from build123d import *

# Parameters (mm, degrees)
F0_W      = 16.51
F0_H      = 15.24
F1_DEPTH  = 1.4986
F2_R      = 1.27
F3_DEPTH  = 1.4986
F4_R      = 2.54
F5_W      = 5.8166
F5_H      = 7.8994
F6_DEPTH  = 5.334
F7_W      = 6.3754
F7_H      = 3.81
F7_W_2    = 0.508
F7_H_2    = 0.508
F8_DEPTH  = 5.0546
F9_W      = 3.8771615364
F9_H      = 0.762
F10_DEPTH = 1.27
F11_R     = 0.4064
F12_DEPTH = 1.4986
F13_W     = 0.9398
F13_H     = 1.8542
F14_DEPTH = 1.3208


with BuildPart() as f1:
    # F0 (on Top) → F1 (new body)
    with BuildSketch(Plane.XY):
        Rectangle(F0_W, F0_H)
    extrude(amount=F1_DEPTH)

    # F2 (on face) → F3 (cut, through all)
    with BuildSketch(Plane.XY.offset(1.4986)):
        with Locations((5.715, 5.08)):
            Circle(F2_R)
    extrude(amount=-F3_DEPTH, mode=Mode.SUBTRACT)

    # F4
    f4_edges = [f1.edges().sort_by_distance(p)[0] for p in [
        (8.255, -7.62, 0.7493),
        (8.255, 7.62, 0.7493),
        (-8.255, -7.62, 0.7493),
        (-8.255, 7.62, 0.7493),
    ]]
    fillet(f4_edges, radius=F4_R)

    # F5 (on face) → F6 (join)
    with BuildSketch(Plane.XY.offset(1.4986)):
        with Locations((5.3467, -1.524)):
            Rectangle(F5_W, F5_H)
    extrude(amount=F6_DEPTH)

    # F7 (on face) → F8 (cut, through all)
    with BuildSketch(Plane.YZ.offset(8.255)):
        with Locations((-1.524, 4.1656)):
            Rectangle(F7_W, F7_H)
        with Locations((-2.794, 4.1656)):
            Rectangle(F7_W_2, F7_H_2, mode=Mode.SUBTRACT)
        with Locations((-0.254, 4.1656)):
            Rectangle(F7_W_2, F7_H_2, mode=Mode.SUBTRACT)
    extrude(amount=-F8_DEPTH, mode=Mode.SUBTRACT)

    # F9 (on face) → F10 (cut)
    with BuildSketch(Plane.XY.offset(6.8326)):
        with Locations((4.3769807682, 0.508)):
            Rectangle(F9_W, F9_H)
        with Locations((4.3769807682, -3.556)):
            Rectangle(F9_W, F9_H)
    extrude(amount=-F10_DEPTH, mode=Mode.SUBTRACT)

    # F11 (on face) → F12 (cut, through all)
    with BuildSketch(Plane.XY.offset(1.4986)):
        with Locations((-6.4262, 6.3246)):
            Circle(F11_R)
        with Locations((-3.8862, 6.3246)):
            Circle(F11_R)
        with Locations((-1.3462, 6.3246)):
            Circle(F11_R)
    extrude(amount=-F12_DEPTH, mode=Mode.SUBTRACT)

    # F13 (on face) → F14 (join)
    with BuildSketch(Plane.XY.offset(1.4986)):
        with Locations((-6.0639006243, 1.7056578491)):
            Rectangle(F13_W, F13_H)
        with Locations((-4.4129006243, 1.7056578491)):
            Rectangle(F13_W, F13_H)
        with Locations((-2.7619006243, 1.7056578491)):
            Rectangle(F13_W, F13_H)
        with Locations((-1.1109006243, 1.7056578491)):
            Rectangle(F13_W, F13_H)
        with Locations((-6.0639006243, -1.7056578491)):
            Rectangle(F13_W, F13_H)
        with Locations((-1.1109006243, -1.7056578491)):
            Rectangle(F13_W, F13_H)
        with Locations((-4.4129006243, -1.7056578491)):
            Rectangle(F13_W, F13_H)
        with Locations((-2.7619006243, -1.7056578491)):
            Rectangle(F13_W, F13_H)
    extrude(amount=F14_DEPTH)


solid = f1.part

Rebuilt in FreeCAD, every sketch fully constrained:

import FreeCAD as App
import Part
import Sketcher
from FreeCAD import Vector
Q = App.Units.Quantity


def edges_at(feature, points):
    """Names of the edges that pass closest to the given points."""
    edges = feature.Shape.Edges
    near = lambda p: min(range(len(edges)), key=lambda i: edges[i].distToShape(Part.Vertex(*p))[0])
    return sorted({f"Edge{near(p) + 1}" for p in points})


def add_polygon(sketch, points):
    """Adds a closed chain of lines whose ends are joined by coincident constraints."""
    first, n = sketch.GeometryCount, len(points)
    for a, b in zip(points, points[1:] + points[:1]):
        sketch.addGeometry(Part.LineSegment(App.Vector(*a, 0), App.Vector(*b, 0)), False)
    for i in range(n):
        sketch.addConstraint(Sketcher.Constraint("Coincident", first + i, 2, first + (i + 1) % n, 1))

doc = App.newDocument("Part")
body = doc.addObject("PartDesign::Body", "Body")

sketch1 = doc.addObject("Sketcher::SketchObject", "Sketch")
body.addObject(sketch1)
sketch1.AttachmentSupport = (doc.XY_Plane, [""])
sketch1.MapMode = "FlatFace"
add_polygon(sketch1, [(-8, 8), (-8, -8), (8, -8), (8, 8)])
sketch1.addConstraint([
    Sketcher.Constraint("Vertical", 0),
    Sketcher.Constraint("Horizontal", 1),
    Sketcher.Constraint("Vertical", 2),
    Sketcher.Constraint("Horizontal", 3),
    Sketcher.Constraint("Symmetric", 0, 2, 2, 2, -1, 1),
    Sketcher.Constraint("DistanceY", 0, 2, 0, 1, Q("0.6 in")),
    Sketcher.Constraint("DistanceX", 1, 1, 1, 2, Q("0.65 in")),
])
pad1 = doc.addObject("PartDesign::Pad", "Pad")
body.addObject(pad1)
pad1.Profile = sketch1
pad1.Length = Q("0.059 in")

sketch2 = doc.addObject("Sketcher::SketchObject", "Sketch001")
body.addObject(sketch2)
sketch2.AttachmentSupport = (doc.XY_Plane, [""])
sketch2.MapMode = "FlatFace"
sketch2.AttachmentOffset = App.Placement(Vector(0, 0, 0.059 * 25.4), App.Rotation())
sketch2.addGeometry(Part.Circle(Vector(5.7, 5.1, 0), Vector(0, 0, 1), 1.3), False)
sketch2.addConstraint([
    Sketcher.Constraint("Diameter", 0, Q("0.1 in")),
    Sketcher.Constraint("DistanceY", -1, 1, 0, 3, Q("0.2 in")),
    Sketcher.Constraint("DistanceX", -1, 1, 0, 3, Q("0.225 in")),
])
pocket1 = doc.addObject("PartDesign::Pocket", "Pocket")
body.addObject(pocket1)
pocket1.Profile = sketch2
pocket1.Type = "ThroughAll"
doc.recompute()

fillet = doc.addObject("PartDesign::Fillet", "Fillet")
body.addObject(fillet)
fillet.Base = (pocket1, edges_at(pocket1, [
    (8.255, -7.62, 0.749),
    (8.255, 7.62, 0.749),
    (-8.255, -7.62, 0.749),
    (-8.255, 7.62, 0.749),
]))
fillet.Radius = Q("0.1 in")

sketch3 = doc.addObject("Sketcher::SketchObject", "Sketch002")
body.addObject(sketch3)
sketch3.AttachmentSupport = (doc.XY_Plane, [""])
sketch3.MapMode = "FlatFace"
sketch3.AttachmentOffset = App.Placement(Vector(0, 0, 0.059 * 25.4), App.Rotation())
add_polygon(sketch3, [(2, 2), (2, -5), (8, -5), (8, 2)])
sketch3.addConstraint([
    Sketcher.Constraint("Vertical", 0),
    Sketcher.Constraint("Horizontal", 1),
    Sketcher.Constraint("Vertical", 2),
    Sketcher.Constraint("Horizontal", 3),
    Sketcher.Constraint("DistanceX", 1, 1, 1, 2, Q("0.229 in")),
    Sketcher.Constraint("DistanceY", 0, 2, 0, 1, Q("0.311 in")),
    Sketcher.Constraint("DistanceX", -1, 1, 0, 2, Q("0.096 in")),
    Sketcher.Constraint("DistanceY", 0, 2, -1, 1, Q("0.2155 in")),
])
pad2 = doc.addObject("PartDesign::Pad", "Pad001")
body.addObject(pad2)
pad2.Profile = sketch3
pad2.Length = Q("0.21 in")

sketch4 = doc.addObject("Sketcher::SketchObject", "Sketch003")
body.addObject(sketch4)
sketch4.AttachmentSupport = (doc.YZ_Plane, [""])
sketch4.MapMode = "FlatFace"
sketch4.AttachmentOffset = App.Placement(Vector(0, 0, 0.325 * 25.4), App.Rotation())
add_polygon(sketch4, [(-4.7, 6.1), (-4.7, 2.3), (1.7, 2.3), (1.7, 6.1)])
add_polygon(sketch4, [(-2.5, 3.9), (-3, 3.9), (-3, 4.4), (-2.5, 4.4)])
add_polygon(sketch4, [(0, 3.9), (-0.5, 3.9), (-0.5, 4.4), (0, 4.4)])
sketch4.addConstraint([
    Sketcher.Constraint("Vertical", 0),
    Sketcher.Constraint("Horizontal", 1),
    Sketcher.Constraint("Vertical", 2),
    Sketcher.Constraint("Horizontal", 3),
    Sketcher.Constraint("Horizontal", 4),
    Sketcher.Constraint("Vertical", 5),
    Sketcher.Constraint("Horizontal", 6),
    Sketcher.Constraint("Vertical", 7),
    Sketcher.Constraint("Horizontal", 8),
    Sketcher.Constraint("Vertical", 9),
    Sketcher.Constraint("Horizontal", 10),
    Sketcher.Constraint("Vertical", 11),
    Sketcher.Constraint("PointOnObject", 10, 2, -2),
    Sketcher.Constraint("Horizontal", 7, 2, 8, 2),
    Sketcher.Constraint("Horizontal", 6, 2, 9, 2),
    Sketcher.Constraint("Equal", 6, 8),
    Sketcher.Constraint("Equal", 10, 5),
    Sketcher.Constraint("DistanceX", 4, 2, 4, 1, Q("0.02 in")),
    Sketcher.Constraint("DistanceY", 0, 2, 0, 1, Q("0.15 in")),
    Sketcher.Constraint("DistanceX", 6, 2, -1, 1, Q("0.1 in")),
    Sketcher.Constraint("DistanceX", 1, 1, 1, 2, Q("0.251 in")),
    Sketcher.Constraint("DistanceY", -1, 1, 0, 2, Q("0.089 in")),
    Sketcher.Constraint("DistanceY", -1, 1, 4, 2, Q("0.154 in")),
    Sketcher.Constraint("DistanceX", 0, 2, -1, 1, Q("0.1855 in")),
])
pocket2 = doc.addObject("PartDesign::Pocket", "Pocket001")
body.addObject(pocket2)
pocket2.Profile = sketch4
pocket2.Length = Q("0.199 in")

sketch5 = doc.addObject("Sketcher::SketchObject", "Sketch004")
body.addObject(sketch5)
sketch5.AttachmentSupport = (doc.XY_Plane, [""])
sketch5.MapMode = "FlatFace"
sketch5.AttachmentOffset = App.Placement(Vector(0, 0, 0.269 * 25.4), App.Rotation())
add_polygon(sketch5, [(2.4, 0.9), (2.4, 0.1), (6.3, 0.1), (6.3, 0.9)])
add_polygon(sketch5, [(2.4, -3.2), (2.4, -3.9), (6.3, -3.9), (6.3, -3.2)])
sketch5.addConstraint([
    Sketcher.Constraint("Vertical", 0),
    Sketcher.Constraint("Horizontal", 1),
    Sketcher.Constraint("Vertical", 2),
    Sketcher.Constraint("Horizontal", 3),
    Sketcher.Constraint("Vertical", 4),
    Sketcher.Constraint("Horizontal", 5),
    Sketcher.Constraint("Vertical", 6),
    Sketcher.Constraint("Horizontal", 7),
    Sketcher.Constraint("Vertical", 3, 2, 4, 2),
    Sketcher.Constraint("Vertical", 2, 2, 5, 2),
    Sketcher.Constraint("Equal", 2, 4),
    Sketcher.Constraint("DistanceY", 0, 2, 0, 1, Q("0.03 in")),
    Sketcher.Constraint("DistanceY", 4, 2, 0, 2, Q("0.16 in")),
    Sketcher.Constraint("DistanceX", -1, 1, 0, 2, Q("0.096 in")),
    Sketcher.Constraint("DistanceY", -1, 1, 0, 2, Q("0.005 in")),
    Sketcher.Constraint("DistanceX", 1, 1, 1, 2, 3.877162),
])
pocket3 = doc.addObject("PartDesign::Pocket", "Pocket002")
body.addObject(pocket3)
pocket3.Profile = sketch5
pocket3.Length = Q("0.05 in")

sketch6 = doc.addObject("Sketcher::SketchObject", "Sketch005")
body.addObject(sketch6)
sketch6.AttachmentSupport = (doc.XY_Plane, [""])
sketch6.MapMode = "FlatFace"
sketch6.AttachmentOffset = App.Placement(Vector(0, 0, 0.059 * 25.4), App.Rotation())
sketch6.addGeometry([
    Part.Circle(Vector(-6.43, 6.32, 0), Vector(0, 0, 1), 0.41),
    Part.Circle(Vector(-3.89, 6.32, 0), Vector(0, 0, 1), 0.41),
    Part.Circle(Vector(-1.35, 6.32, 0), Vector(0, 0, 1), 0.41),
], False)
sketch6.addConstraint([
    Sketcher.Constraint("Equal", 0, 1),
    Sketcher.Constraint("Equal", 1, 2),
    Sketcher.Constraint("Horizontal", 0, 3, 1, 3),
    Sketcher.Constraint("Horizontal", 1, 3, 2, 3),
    Sketcher.Constraint("Diameter", 0, Q("0.032 in")),
    Sketcher.Constraint("DistanceX", 0, 3, 1, 3, Q("0.1 in")),
    Sketcher.Constraint("DistanceX", 1, 3, 2, 3, Q("0.1 in")),
    Sketcher.Constraint("DistanceX", 0, 3, -1, 1, Q("0.253 in")),
    Sketcher.Constraint("DistanceY", -1, 1, 0, 3, Q("0.249 in")),
])
pocket4 = doc.addObject("PartDesign::Pocket", "Pocket003")
body.addObject(pocket4)
pocket4.Profile = sketch6
pocket4.Type = "ThroughAll"

sketch7 = doc.addObject("Sketcher::SketchObject", "Sketch006")
body.addObject(sketch7)
sketch7.AttachmentSupport = (doc.XY_Plane, [""])
sketch7.MapMode = "FlatFace"
sketch7.AttachmentOffset = App.Placement(Vector(0, 0, 0.059 * 25.4), App.Rotation())
add_polygon(sketch7, [(-6.5, 2.6), (-6.5, 0.8), (-5.6, 0.8), (-5.6, 2.6)])
add_polygon(sketch7, [(-4.9, 2.6), (-4.9, 0.8), (-3.9, 0.8), (-3.9, 2.6)])
add_polygon(sketch7, [(-3.2, 2.6), (-3.2, 0.8), (-2.3, 0.8), (-2.3, 2.6)])
add_polygon(sketch7, [(-1.6, 2.6), (-1.6, 0.8), (-0.6, 0.8), (-0.6, 2.6)])
add_polygon(sketch7, [(-6.5, -0.8), (-6.5, -2.6), (-5.6, -2.6), (-5.6, -0.8)])
add_polygon(sketch7, [(-1.6, -0.8), (-1.6, -2.6), (-0.6, -2.6), (-0.6, -0.8)])
add_polygon(sketch7, [(-4.9, -0.8), (-4.9, -2.6), (-3.9, -2.6), (-3.9, -0.8)])
add_polygon(sketch7, [(-3.2, -0.8), (-3.2, -2.6), (-2.3, -2.6), (-2.3, -0.8)])
sketch7.addConstraint([
    Sketcher.Constraint("Vertical", 0),
    Sketcher.Constraint("Horizontal", 1),
    Sketcher.Constraint("Vertical", 2),
    Sketcher.Constraint("Horizontal", 3),
    Sketcher.Constraint("Vertical", 4),
    Sketcher.Constraint("Horizontal", 5),
    Sketcher.Constraint("Vertical", 6),
    Sketcher.Constraint("Horizontal", 7),
    Sketcher.Constraint("Vertical", 8),
    Sketcher.Constraint("Horizontal", 9),
    Sketcher.Constraint("Vertical", 10),
    Sketcher.Constraint("Horizontal", 11),
    Sketcher.Constraint("Vertical", 12),
    Sketcher.Constraint("Horizontal", 13),
    Sketcher.Constraint("Vertical", 14),
    Sketcher.Constraint("Horizontal", 15),
    Sketcher.Constraint("Vertical", 16),
    Sketcher.Constraint("Horizontal", 17),
    Sketcher.Constraint("Vertical", 18),
    Sketcher.Constraint("Horizontal", 19),
    Sketcher.Constraint("Vertical", 20),
    Sketcher.Constraint("Horizontal", 21),
    Sketcher.Constraint("Vertical", 22),
    Sketcher.Constraint("Horizontal", 23),
    Sketcher.Constraint("Vertical", 24),
    Sketcher.Constraint("Horizontal", 25),
    Sketcher.Constraint("Vertical", 26),
    Sketcher.Constraint("Horizontal", 27),
    Sketcher.Constraint("Vertical", 28),
    Sketcher.Constraint("Horizontal", 29),
    Sketcher.Constraint("Vertical", 30),
    Sketcher.Constraint("Horizontal", 31),
    Sketcher.Constraint("Symmetric", 3, 2, 16, 2, -1),
    Sketcher.Constraint("Symmetric", 1, 2, 18, 2, -1),
    Sketcher.Constraint("Symmetric", 15, 2, 20, 2, -1),
    Sketcher.Constraint("Symmetric", 13, 2, 22, 2, -1),
    Sketcher.Constraint("Symmetric", 7, 2, 24, 2, -1),
    Sketcher.Constraint("Symmetric", 5, 2, 26, 2, -1),
    Sketcher.Constraint("Symmetric", 11, 2, 28, 2, -1),
    Sketcher.Constraint("Symmetric", 9, 2, 30, 2, -1),
    Sketcher.Constraint("Horizontal", 1, 2, 4, 2),
    Sketcher.Constraint("Horizontal", 3, 2, 6, 2),
    Sketcher.Constraint("Horizontal", 5, 2, 8, 2),
    Sketcher.Constraint("Horizontal", 7, 2, 10, 2),
    Sketcher.Constraint("Horizontal", 9, 2, 12, 2),
    Sketcher.Constraint("Horizontal", 11, 2, 14, 2),
    Sketcher.Constraint("Equal", 3, 5),
    Sketcher.Constraint("Equal", 7, 9),
    Sketcher.Constraint("Equal", 11, 13),
    Sketcher.Constraint("DistanceX", 1, 1, 1, 2, Q("0.037 in")),
    Sketcher.Constraint("DistanceY", 0, 2, 0, 1, Q("0.073 in")),
    Sketcher.Constraint("DistanceX", 16, 2, 8, 2, Q("0.13 in")),
    Sketcher.Constraint("DistanceX", 24, 2, 20, 2, Q("0.13 in")),
    Sketcher.Constraint("DistanceX", 1, 2, 4, 2, Q("0.028 in")),
    Sketcher.Constraint("DistanceX", 0, 2, -1, 1, 6.533801),
    Sketcher.Constraint("DistanceY", -1, 1, 0, 2, 0.778558),
])
pad3 = doc.addObject("PartDesign::Pad", "Pad002")
body.addObject(pad3)
pad3.Profile = sketch7
pad3.Length = Q("0.052 in")

doc.recompute()
